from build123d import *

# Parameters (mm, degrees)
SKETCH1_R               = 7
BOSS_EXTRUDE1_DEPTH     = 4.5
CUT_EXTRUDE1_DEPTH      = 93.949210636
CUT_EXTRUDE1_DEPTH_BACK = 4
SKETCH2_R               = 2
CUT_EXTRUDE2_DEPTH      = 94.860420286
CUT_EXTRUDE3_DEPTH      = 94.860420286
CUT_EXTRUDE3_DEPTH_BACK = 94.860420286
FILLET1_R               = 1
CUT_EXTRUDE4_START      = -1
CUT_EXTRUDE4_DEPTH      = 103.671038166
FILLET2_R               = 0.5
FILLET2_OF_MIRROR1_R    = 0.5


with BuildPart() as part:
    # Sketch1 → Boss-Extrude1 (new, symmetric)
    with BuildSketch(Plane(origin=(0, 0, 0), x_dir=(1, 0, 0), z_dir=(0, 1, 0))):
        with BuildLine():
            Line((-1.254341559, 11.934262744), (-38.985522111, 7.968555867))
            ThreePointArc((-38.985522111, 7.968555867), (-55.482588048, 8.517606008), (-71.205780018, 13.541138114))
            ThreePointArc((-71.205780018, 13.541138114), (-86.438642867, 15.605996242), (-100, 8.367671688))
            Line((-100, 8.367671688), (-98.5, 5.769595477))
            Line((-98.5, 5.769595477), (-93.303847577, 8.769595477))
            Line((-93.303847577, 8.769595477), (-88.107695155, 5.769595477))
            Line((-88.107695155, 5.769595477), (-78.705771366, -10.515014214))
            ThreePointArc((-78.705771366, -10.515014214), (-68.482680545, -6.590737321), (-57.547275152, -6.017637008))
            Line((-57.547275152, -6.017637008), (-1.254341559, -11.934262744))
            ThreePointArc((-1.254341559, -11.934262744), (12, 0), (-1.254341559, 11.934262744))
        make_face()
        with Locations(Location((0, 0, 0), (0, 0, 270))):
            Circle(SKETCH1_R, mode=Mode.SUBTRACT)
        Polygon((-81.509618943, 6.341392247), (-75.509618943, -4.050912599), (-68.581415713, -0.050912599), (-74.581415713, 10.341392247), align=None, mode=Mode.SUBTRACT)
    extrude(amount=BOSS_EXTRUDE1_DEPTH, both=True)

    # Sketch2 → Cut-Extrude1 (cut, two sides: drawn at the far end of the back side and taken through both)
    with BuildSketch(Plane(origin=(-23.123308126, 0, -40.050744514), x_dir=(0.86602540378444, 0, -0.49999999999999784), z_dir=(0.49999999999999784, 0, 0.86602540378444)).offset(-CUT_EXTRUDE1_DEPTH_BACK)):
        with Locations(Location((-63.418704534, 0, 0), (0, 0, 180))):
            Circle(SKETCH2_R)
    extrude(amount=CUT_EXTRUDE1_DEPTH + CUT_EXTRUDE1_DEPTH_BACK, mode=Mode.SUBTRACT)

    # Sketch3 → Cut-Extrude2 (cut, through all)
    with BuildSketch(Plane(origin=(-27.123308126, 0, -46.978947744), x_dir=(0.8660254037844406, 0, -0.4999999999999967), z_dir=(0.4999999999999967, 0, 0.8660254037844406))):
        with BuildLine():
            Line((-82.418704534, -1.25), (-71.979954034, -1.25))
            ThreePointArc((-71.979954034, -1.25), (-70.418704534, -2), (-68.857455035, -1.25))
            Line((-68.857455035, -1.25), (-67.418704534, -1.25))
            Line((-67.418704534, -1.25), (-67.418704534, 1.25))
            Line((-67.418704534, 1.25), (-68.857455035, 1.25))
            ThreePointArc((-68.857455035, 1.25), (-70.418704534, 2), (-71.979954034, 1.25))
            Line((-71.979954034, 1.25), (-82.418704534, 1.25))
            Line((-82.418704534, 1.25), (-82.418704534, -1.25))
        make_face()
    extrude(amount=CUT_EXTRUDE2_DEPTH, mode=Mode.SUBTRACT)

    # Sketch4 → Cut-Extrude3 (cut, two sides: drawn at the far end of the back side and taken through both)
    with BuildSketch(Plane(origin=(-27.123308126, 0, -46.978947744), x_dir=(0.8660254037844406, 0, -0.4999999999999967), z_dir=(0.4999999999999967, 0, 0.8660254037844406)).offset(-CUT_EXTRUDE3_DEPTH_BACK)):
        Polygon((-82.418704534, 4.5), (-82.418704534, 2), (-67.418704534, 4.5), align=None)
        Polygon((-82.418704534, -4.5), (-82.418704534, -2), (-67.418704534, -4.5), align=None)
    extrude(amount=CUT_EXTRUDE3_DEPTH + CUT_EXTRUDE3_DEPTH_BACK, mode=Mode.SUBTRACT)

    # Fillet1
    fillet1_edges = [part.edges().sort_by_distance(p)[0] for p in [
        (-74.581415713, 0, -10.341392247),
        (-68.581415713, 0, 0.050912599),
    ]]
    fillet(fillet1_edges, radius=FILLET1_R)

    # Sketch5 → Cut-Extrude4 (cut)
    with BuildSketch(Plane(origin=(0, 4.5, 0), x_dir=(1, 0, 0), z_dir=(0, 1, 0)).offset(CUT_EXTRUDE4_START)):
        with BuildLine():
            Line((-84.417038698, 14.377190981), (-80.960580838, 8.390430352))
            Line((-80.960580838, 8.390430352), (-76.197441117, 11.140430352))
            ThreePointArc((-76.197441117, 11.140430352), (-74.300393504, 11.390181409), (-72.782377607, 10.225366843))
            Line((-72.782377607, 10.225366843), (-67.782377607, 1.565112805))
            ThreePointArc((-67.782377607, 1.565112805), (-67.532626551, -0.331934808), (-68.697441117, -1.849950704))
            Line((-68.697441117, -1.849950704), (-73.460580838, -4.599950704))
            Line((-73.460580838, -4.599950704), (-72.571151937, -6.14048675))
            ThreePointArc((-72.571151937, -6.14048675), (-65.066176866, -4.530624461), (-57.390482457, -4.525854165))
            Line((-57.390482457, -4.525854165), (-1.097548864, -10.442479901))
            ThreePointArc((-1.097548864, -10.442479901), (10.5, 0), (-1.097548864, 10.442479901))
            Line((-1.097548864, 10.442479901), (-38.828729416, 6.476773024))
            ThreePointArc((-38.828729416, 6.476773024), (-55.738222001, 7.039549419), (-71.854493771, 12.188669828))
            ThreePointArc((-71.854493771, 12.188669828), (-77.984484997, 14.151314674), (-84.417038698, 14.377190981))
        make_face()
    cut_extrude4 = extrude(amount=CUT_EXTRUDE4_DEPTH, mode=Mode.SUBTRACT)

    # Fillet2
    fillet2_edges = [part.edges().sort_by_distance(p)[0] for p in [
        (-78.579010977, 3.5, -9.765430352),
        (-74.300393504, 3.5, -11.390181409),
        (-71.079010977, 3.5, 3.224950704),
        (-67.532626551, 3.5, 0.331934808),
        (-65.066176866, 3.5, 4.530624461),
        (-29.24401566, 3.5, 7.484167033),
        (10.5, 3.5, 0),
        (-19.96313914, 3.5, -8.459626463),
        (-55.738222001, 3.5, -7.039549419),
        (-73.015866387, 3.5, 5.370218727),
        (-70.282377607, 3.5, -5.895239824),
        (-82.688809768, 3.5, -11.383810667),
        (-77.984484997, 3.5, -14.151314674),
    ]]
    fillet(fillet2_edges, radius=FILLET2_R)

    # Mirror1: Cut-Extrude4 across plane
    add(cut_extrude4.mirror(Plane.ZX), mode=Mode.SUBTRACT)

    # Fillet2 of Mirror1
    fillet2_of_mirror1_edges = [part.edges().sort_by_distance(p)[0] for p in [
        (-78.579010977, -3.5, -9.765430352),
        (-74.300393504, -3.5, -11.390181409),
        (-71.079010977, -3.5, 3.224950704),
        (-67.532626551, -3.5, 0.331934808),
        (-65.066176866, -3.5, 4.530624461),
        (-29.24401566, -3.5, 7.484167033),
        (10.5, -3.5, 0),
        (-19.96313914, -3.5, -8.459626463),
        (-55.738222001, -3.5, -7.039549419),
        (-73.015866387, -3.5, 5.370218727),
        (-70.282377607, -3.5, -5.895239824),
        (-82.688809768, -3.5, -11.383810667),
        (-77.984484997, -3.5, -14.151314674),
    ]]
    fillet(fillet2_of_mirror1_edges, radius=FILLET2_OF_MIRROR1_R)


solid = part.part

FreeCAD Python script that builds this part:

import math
import FreeCAD as App
import Part
import Sketcher
from FreeCAD import Vector
Q = App.Units.Quantity


def edges_at(feature, points):
    """Names of the edges that pass closest to the given points."""
    edges = feature.Shape.Edges
    near = lambda p: min(range(len(edges)), key=lambda i: edges[i].distToShape(Part.Vertex(*p))[0])
    return sorted({f"Edge{near(p) + 1}" for p in points})

doc = App.newDocument("Part")
params = doc.addObject("Spreadsheet::Sheet", "Params")
for row, (alias, value) in enumerate([
    ("sketch1_diameter", "14 mm"),
    ("sketch1_radius", "60 mm"),
    ("sketch1_radius2", "25 mm"),
    ("sketch1_radius3", "35 mm"),
    ("sketch1_radius4", "12 mm"),
    ("pad1_length", "9 mm"),
    ("sketch2_diameter", "4 mm"),
    ("pocket1_length", "93.949211 mm"),
    ("pocket1_length2", "4 mm"),
    ("sketch3_radius", "2 mm"),
    ("sketch3_height", "2.5 mm"),
    ("sketch4_width", "15 mm"),
    ("sketch4_height", "2.5 mm"),
    ("fillet_radius", "1 mm"),
    ("sketch5_radius", "2.5 mm"),
    ("sketch5_radius2", "36.5 mm"),
    ("sketch5_radius3", "10.5 mm"),
    ("sketch5_radius4", "61.5 mm"),
    ("sketch5_radius5", "23.5 mm"),
    ("pocket4_length", "103.671038 mm"),
    ("fillet2_radius", "0.5 mm"),
    ("fillet3_radius", "0.5 mm"),
], start=1):
    params.set(f"A{row}", alias)
    params.set(f"B{row}", "=" + value)
    params.setAlias(f"B{row}", alias)

body = doc.addObject("PartDesign::Body", "Body")

# Sketch on XZ plane
sketch1 = body.newObject("Sketcher::SketchObject", "Sketch")
sketch1.AttachmentSupport = (doc.getObject("XZ_Plane"), [""])
sketch1.MapMode = "FlatFace"
sketch1.addGeometry(Part.LineSegment(Vector(-1.3, -11.9, 0), Vector(-39, -8, 0)), False)
sketch1.addGeometry(Part.ArcOfCircle(Part.Circle(Vector(-45.3, -67.6, 0), Vector(0, 0, 1), 60), math.radians(84), math.radians(116)), False)
sketch1.addGeometry(Part.ArcOfCircle(Part.Circle(Vector(-82, 9, 0), Vector(0, 0, 1), 25), math.radians(-136), math.radians(-64)), False)
sketch1.addGeometry(Part.LineSegment(Vector(-100, -8.4, 0), Vector(-98.5, -5.8, 0)), False)
sketch1.addGeometry(Part.LineSegment(Vector(-98.5, -5.8, 0), Vector(-93.3, -8.8, 0)), False)
sketch1.addGeometry(Part.LineSegment(Vector(-93.3, -8.8, 0), Vector(-88.1, -5.8, 0)), False)
sketch1.addGeometry(Part.LineSegment(Vector(-88.1, -5.8, 0), Vector(-78.7, 10.5, 0)), False)
sketch1.addGeometry(Part.ArcOfCircle(Part.Circle(Vector(-61.2, 40.8, 0), Vector(0, 0, 1), 35), math.radians(-120), math.radians(-84)), False)
sketch1.addGeometry(Part.LineSegment(Vector(-57.5, 6, 0), Vector(-1.3, 11.9, 0)), False)
sketch1.addGeometry(Part.ArcOfCircle(Part.Circle(Vector(0, 0, 0), Vector(0, 0, 1), 12), math.radians(-96), math.radians(96)), False)
sketch1.addGeometry(Part.Circle(Vector(0, 0, 0), Vector(0, 0, 1), 7), False)
sketch1.addGeometry(Part.LineSegment(Vector(-75.5, 4.1, 0), Vector(-81.5, -6.3, 0)), False)
sketch1.addGeometry(Part.LineSegment(Vector(-81.5, -6.3, 0), Vector(-74.6, -10.3, 0)), False)
sketch1.addGeometry(Part.LineSegment(Vector(-74.6, -10.3, 0), Vector(-68.6, 0.1, 0)), False)
sketch1.addGeometry(Part.LineSegment(Vector(-68.6, 0.1, 0), Vector(-75.5, 4.1, 0)), False)
sketch1.addConstraint(Sketcher.Constraint("Tangent", 0, 2, 1, 1))
sketch1.addConstraint(Sketcher.Constraint("Tangent", 1, 2, 2, 2))
sketch1.addConstraint(Sketcher.Constraint("Coincident", 2, 1, 3, 1))
sketch1.addConstraint(Sketcher.Constraint("Coincident", 3, 2, 4, 1))
sketch1.addConstraint(Sketcher.Constraint("Coincident", 4, 2, 5, 1))
sketch1.addConstraint(Sketcher.Constraint("Coincident", 5, 2, 6, 1))
sketch1.addConstraint(Sketcher.Constraint("Coincident", 6, 2, 7, 1))
sketch1.addConstraint(Sketcher.Constraint("Tangent", 7, 2, 8, 1))
sketch1.addConstraint(Sketcher.Constraint("Tangent", 8, 2, 9, 2))
sketch1.addConstraint(Sketcher.Constraint("Tangent", 9, 1, 0, 1))
sketch1.addConstraint(Sketcher.Constraint("Coincident", 11, 2, 12, 1))
sketch1.addConstraint(Sketcher.Constraint("Coincident", 12, 2, 13, 1))
sketch1.addConstraint(Sketcher.Constraint("Coincident", 13, 2, 14, 1))
sketch1.addConstraint(Sketcher.Constraint("Coincident", 14, 2, 11, 1))
sketch1.addConstraint(Sketcher.Constraint("Coincident", 9, 3, -1, 1))
sketch1.addConstraint(Sketcher.Constraint("Coincident", 10, 3, -1, 1))
sketch1.addConstraint(Sketcher.Constraint("Perpendicular", 3, 4))
sketch1.addConstraint(Sketcher.Constraint("Perpendicular", 4, 6))
sketch1.addConstraint(Sketcher.Constraint("Parallel", 6, 11))
sketch1.addConstraint(Sketcher.Constraint("Perpendicular", 11, 12))
sketch1.addConstraint(Sketcher.Constraint("Perpendicular", 12, 13))
sketch1.addConstraint(Sketcher.Constraint("Perpendicular", 13, 14))
sketch1.addConstraint(Sketcher.Constraint("Horizontal", 3, 2, 5, 2))
sketch1.addConstraint(Sketcher.Constraint("Vertical", 8, 2, 9, 1))
sketch1.addConstraint(Sketcher.Constraint("Equal", 4, 5))
sketch1.addConstraint(Sketcher.Constraint("Diameter", 10, 14.0))
sketch1.addConstraint(Sketcher.Constraint("Radius", 1, 60.0))
sketch1.addConstraint(Sketcher.Constraint("Radius", 2, 25.0))
sketch1.addConstraint(Sketcher.Constraint("Radius", 7, 35.0))
sketch1.addConstraint(Sketcher.Constraint("Radius", 9, 12.0))
sketch1.addConstraint(Sketcher.Constraint("Angle", 0, Q("174 deg")))
sketch1.addConstraint(Sketcher.Constraint("Angle", 3, Q("60 deg")))
sketch1.addConstraint(Sketcher.Constraint("Distance", 3, 3.0))
sketch1.addConstraint(Sketcher.Constraint("Distance", 4, 6.0))
sketch1.addConstraint(Sketcher.Constraint("Distance", 11, 12.0))
sketch1.addConstraint(Sketcher.Constraint("Distance", 12, 8.0))
sketch1.addConstraint(Sketcher.Constraint("DistanceY", -1, 1, 2, 3, 9.0))
sketch1.addConstraint(Sketcher.Constraint("DistanceX", 2, 1, -1, 1, 100.0))
sketch1.addConstraint(Sketcher.Constraint("DistanceY", 3, 2, 7, 3, 46.595499))
sketch1.addConstraint(Sketcher.Constraint("DistanceX", 2, 3, 7, 2, 24.470401))
sketch1.addConstraint(Sketcher.Constraint("DistanceY", 13, 2, 6, 2, 10.464102))
sketch1.addConstraint(Sketcher.Constraint("DistanceX", 11, 2, -1, 1, 81.509619))
sketch1.setExpression("Constraints[25]", "Params.sketch1_diameter")
sketch1.setExpression("Constraints[26]", "Params.sketch1_radius")
sketch1.setExpression("Constraints[27]", "Params.sketch1_radius2")
sketch1.setExpression("Constraints[28]", "Params.sketch1_radius3")
sketch1.setExpression("Constraints[29]", "Params.sketch1_radius4")
pad1 = body.newObject("PartDesign::Pad", "Pad")
pad1.Profile = sketch1
pad1.setExpression("Length", "Params.pad1_length")
pad1.Midplane = True

# Sketch on an angled plane
sketch2 = body.newObject("Sketcher::SketchObject", "Sketch001")
sketch2.Placement = App.Placement(Vector(-23.123308, 0, -40.050745), App.Rotation(Vector(0.866025404, 0, -0.5), Vector(0, 1, 0), Vector(0.5, 0, 0.866025404), "ZXY"))
sketch2.addGeometry(Part.Circle(Vector(-63.4, 0, 0), Vector(0, 0, 1), 2), False)
sketch2.addConstraint(Sketcher.Constraint("PointOnObject", 0, 3, -1))
sketch2.addConstraint(Sketcher.Constraint("Diameter", 0, 4.0))
sketch2.addConstraint(Sketcher.Constraint("DistanceX", 0, 3, -1, 1, 63.418705))
sketch2.setExpression("Constraints[1]", "Params.sketch2_diameter")
pocket1 = body.newObject("PartDesign::Pocket", "Pocket")
pocket1.Profile = sketch2
pocket1.Type = "TwoLengths"
pocket1.setExpression("Length", "Params.pocket1_length")
pocket1.setExpression("Length2", "Params.pocket1_length2")
pocket1.Reversed = True

# Sketch on an angled plane
sketch3 = body.newObject("Sketcher::SketchObject", "Sketch002")
sketch3.Placement = App.Placement(Vector(-27.123308, 0, -46.978948), App.Rotation(Vector(0.866025404, 0, -0.5), Vector(0, 1, 0), Vector(0.5, 0, 0.866025404), "ZXY"))
sketch3.addGeometry(Part.LineSegment(Vector(-82.4, -1.3, 0), Vector(-72, -1.3, 0)), False)
sketch3.addGeometry(Part.ArcOfCircle(Part.Circle(Vector(-70.4, 0, 0), Vector(0, 0, 1), 2), math.radians(-141), math.radians(-39)), False)
sketch3.addGeometry(Part.LineSegment(Vector(-68.9, -1.3, 0), Vector(-67.4, -1.3, 0)), False)
sketch3.addGeometry(Part.LineSegment(Vector(-67.4, -1.3, 0), Vector(-67.4, 1.3, 0)), False)
sketch3.addGeometry(Part.LineSegment(Vector(-67.4, 1.3, 0), Vector(-68.9, 1.3, 0)), False)
sketch3.addGeometry(Part.ArcOfCircle(Part.Circle(Vector(-70.4, 0, 0), Vector(0, 0, 1), 2), math.radians(39), math.radians(141)), False)
sketch3.addGeometry(Part.LineSegment(Vector(-72, 1.3, 0), Vector(-82.4, 1.3, 0)), False)
sketch3.addGeometry(Part.LineSegment(Vector(-82.4, 1.3, 0), Vector(-82.4, -1.3, 0)), False)
sketch3.addConstraint(Sketcher.Constraint("Coincident", 0, 2, 1, 1))
sketch3.addConstraint(Sketcher.Constraint("Coincident", 1, 2, 2, 1))
sketch3.addConstraint(Sketcher.Constraint("Coincident", 2, 2, 3, 1))
sketch3.addConstraint(Sketcher.Constraint("Coincident", 3, 2, 4, 1))
sketch3.addConstraint(Sketcher.Constraint("Coincident", 4, 2, 5, 1))
sketch3.addConstraint(Sketcher.Constraint("Coincident", 5, 2, 6, 1))
sketch3.addConstraint(Sketcher.Constraint("Coincident", 6, 2, 7, 1))
sketch3.addConstraint(Sketcher.Constraint("Coincident", 7, 2, 0, 1))
sketch3.addConstraint(Sketcher.Constraint("Horizontal", 0))
sketch3.addConstraint(Sketcher.Constraint("Horizontal", 2))
sketch3.addConstraint(Sketcher.Constraint("Vertical", 3))
sketch3.addConstraint(Sketcher.Constraint("Horizontal", 4))
sketch3.addConstraint(Sketcher.Constraint("Horizontal", 6))
sketch3.addConstraint(Sketcher.Constraint("Vertical", 7))
sketch3.addConstraint(Sketcher.Constraint("Coincident", 5, 3, 1, 3))
sketch3.addConstraint(Sketcher.Constraint("Equal", 1, 5))
sketch3.addConstraint(Sketcher.Constraint("Symmetric", 1, 2, 4, 2, -1))
sketch3.addConstraint(Sketcher.Constraint("Horizontal", 0, 2, 1, 2))
sketch3.addConstraint(Sketcher.Constraint("Horizontal", 4, 2, 5, 2))
sketch3.addConstraint(Sketcher.Constraint("Radius", 1, 2.0))
sketch3.addConstraint(Sketcher.Constraint("DistanceY", 3, 1, 3, 2, 2.5))
sketch3.addConstraint(Sketcher.Constraint("DistanceX", 1, 3, 2, 2, 3.0))
sketch3.addConstraint(Sketcher.Constraint("DistanceX", 6, 2, 1, 3, 12.0))
sketch3.addConstraint(Sketcher.Constraint("DistanceX", 1, 3, -1, 1, 70.418705))
sketch3.setExpression("Constraints[19]", "Params.sketch3_radius")
sketch3.setExpression("Constraints[20]", "Params.sketch3_height")
pocket2 = body.newObject("PartDesign::Pocket", "Pocket001")
pocket2.Profile = sketch3
pocket2.Type = "ThroughAll"
pocket2.Reversed = True

# Sketch on an angled plane
sketch4 = body.newObject("Sketcher::SketchObject", "Sketch003")
sketch4.Placement = App.Placement(Vector(-27.123308, 0, -46.978948), App.Rotation(Vector(0.866025404, 0, -0.5), Vector(0, 1, 0), Vector(0.5, 0, 0.866025404), "ZXY"))
sketch4.addGeometry(Part.LineSegment(Vector(-82.4, 4.5, 0), Vector(-82.4, 2, 0)), False)
sketch4.addGeometry(Part.LineSegment(Vector(-82.4, 2, 0), Vector(-67.4, 4.5, 0)), False)
sketch4.addGeometry(Part.LineSegment(Vector(-67.4, 4.5, 0), Vector(-82.4, 4.5, 0)), False)
sketch4.addGeometry(Part.LineSegment(Vector(-82.4, -2, 0), Vector(-82.4, -4.5, 0)), False)
sketch4.addGeometry(Part.LineSegment(Vector(-82.4, -4.5, 0), Vector(-67.4, -4.5, 0)), False)
sketch4.addGeometry(Part.LineSegment(Vector(-67.4, -4.5, 0), Vector(-82.4, -2, 0)), False)
sketch4.addConstraint(Sketcher.Constraint("Coincident", 0, 2, 1, 1))
sketch4.addConstraint(Sketcher.Constraint("Coincident", 1, 2, 2, 1))
sketch4.addConstraint(Sketcher.Constraint("Coincident", 2, 2, 0, 1))
sketch4.addConstraint(Sketcher.Constraint("Coincident", 3, 2, 4, 1))
sketch4.addConstraint(Sketcher.Constraint("Coincident", 4, 2, 5, 1))
sketch4.addConstraint(Sketcher.Constraint("Coincident", 5, 2, 3, 1))
sketch4.addConstraint(Sketcher.Constraint("Vertical", 0))
sketch4.addConstraint(Sketcher.Constraint("Horizontal", 2))
sketch4.addConstraint(Sketcher.Constraint("Vertical", 3))
sketch4.addConstraint(Sketcher.Constraint("Horizontal", 4))
sketch4.addConstraint(Sketcher.Constraint("Symmetric", 2, 2, 3, 2, -1))
sketch4.addConstraint(Sketcher.Constraint("Vertical", 1, 2, 4, 2))
sketch4.addConstraint(Sketcher.Constraint("Equal", 0, 3))
sketch4.addConstraint(Sketcher.Constraint("DistanceX", 2, 2, 2, 1, 15.0))
sketch4.addConstraint(Sketcher.Constraint("DistanceY", 0, 2, 0, 1, 2.5))
sketch4.addConstraint(Sketcher.Constraint("DistanceY", -1, 1, 0, 2, 2.0))
sketch4.addConstraint(Sketcher.Constraint("DistanceX", 0, 2, -1, 1, 82.418705))
sketch4.setExpression("Constraints[13]", "Params.sketch4_width")
sketch4.setExpression("Constraints[14]", "Params.sketch4_height")
pocket3 = body.newObject("PartDesign::Pocket", "Pocket002")
pocket3.Profile = sketch4
pocket3.Type = "ThroughAll"
pocket3.Midplane = True
doc.recompute()

fillet = body.newObject("PartDesign::Fillet", "Fillet")
fillet.Base = (pocket3, edges_at(pocket3, [(-74.581, 0, -10.341), (-68.581, 0, 0.051)]))
fillet.setExpression("Radius", "Params.fillet_radius")

# Sketch on XZ plane
sketch5 = body.newObject("Sketcher::SketchObject", "Sketch004")
sketch5.AttachmentSupport = (doc.getObject("XZ_Plane"), [""])
sketch5.MapMode = "FlatFace"
sketch5.AttachmentOffset = App.Placement(Vector(0, 0, -3.5), App.Rotation())
sketch5.addGeometry(Part.LineSegment(Vector(-84.4, -14.4, 0), Vector(-81, -8.4, 0)), False)
sketch5.addGeometry(Part.LineSegment(Vector(-81, -8.4, 0), Vector(-76.2, -11.1, 0)), False)
sketch5.addGeometry(Part.ArcOfCircle(Part.Circle(Vector(-74.9, -9, 0), Vector(0, 0, 1), 2.5), math.radians(-120), math.radians(-30)), False)
sketch5.addGeometry(Part.LineSegment(Vector(-72.8, -10.2, 0), Vector(-67.8, -1.6, 0)), False)
sketch5.addGeometry(Part.ArcOfCircle(Part.Circle(Vector(-69.9, -0.3, 0), Vector(0, 0, 1), 2.5), math.radians(-30), math.radians(60)), False)
sketch5.addGeometry(Part.LineSegment(Vector(-68.7, 1.8, 0), Vector(-73.5, 4.6, 0)), False)
sketch5.addGeometry(Part.LineSegment(Vector(-73.5, 4.6, 0), Vector(-72.6, 6.1, 0)), False)
sketch5.addGeometry(Part.ArcOfCircle(Part.Circle(Vector(-61.2, 40.8, 0), Vector(0, 0, 1), 36.5), math.radians(-108), math.radians(-84)), False)
sketch5.addGeometry(Part.LineSegment(Vector(-57.4, 4.5, 0), Vector(-1.1, 10.4, 0)), False)
sketch5.addGeometry(Part.ArcOfCircle(Part.Circle(Vector(0, 0, 0), Vector(0, 0, 1), 10.5), math.radians(-96), math.radians(96)), False)
sketch5.addGeometry(Part.LineSegment(Vector(-1.1, -10.4, 0), Vector(-38.8, -6.5, 0)), False)
sketch5.addGeometry(Part.ArcOfCircle(Part.Circle(Vector(-45.3, -67.6, 0), Vector(0, 0, 1), 61.5), math.radians(84), math.radians(116)), False)
sketch5.addGeometry(Part.ArcOfCircle(Part.Circle(Vector(-82, 9, 0), Vector(0, 0, 1), 23.5), math.radians(-96), math.radians(-64)), False)
sketch5.addConstraint(Sketcher.Constraint("Coincident", 0, 2, 1, 1))
sketch5.addConstraint(Sketcher.Constraint("Tangent", 1, 2, 2, 1))
sketch5.addConstraint(Sketcher.Constraint("Tangent", 2, 2, 3, 1))
sketch5.addConstraint(Sketcher.Constraint("Tangent", 3, 2, 4, 1))
sketch5.addConstraint(Sketcher.Constraint("Tangent", 4, 2, 5, 1))
sketch5.addConstraint(Sketcher.Constraint("Coincident", 5, 2, 6, 1))
sketch5.addConstraint(Sketcher.Constraint("Coincident", 6, 2, 7, 1))
sketch5.addConstraint(Sketcher.Constraint("Tangent", 7, 2, 8, 1))
sketch5.addConstraint(Sketcher.Constraint("Tangent", 8, 2, 9, 2))
sketch5.addConstraint(Sketcher.Constraint("Tangent", 9, 1, 10, 1))
sketch5.addConstraint(Sketcher.Constraint("Tangent", 10, 2, 11, 1))
sketch5.addConstraint(Sketcher.Constraint("Tangent", 11, 2, 12, 2))
sketch5.addConstraint(Sketcher.Constraint("Coincident", 12, 1, 0, 1))
sketch5.addConstraint(Sketcher.Constraint("Coincident", 9, 3, -1, 1))
sketch5.addConstraint(Sketcher.Constraint("Equal", 2, 4))
sketch5.addConstraint(Sketcher.Constraint("Perpendicular", 0, 1))
sketch5.addConstraint(Sketcher.Constraint("Perpendicular", 1, 3))
sketch5.addConstraint(Sketcher.Constraint("Perpendicular", 3, 5))
sketch5.addConstraint(Sketcher.Constraint("Perpendicular", 5, 6))
sketch5.addConstraint(Sketcher.Constraint("Vertical", 8, 2, 9, 1))
sketch5.addConstraint(Sketcher.Constraint("Equal", 1, 5))
sketch5.addConstraint(Sketcher.Constraint("Radius", 2, 2.5))
sketch5.addConstraint(Sketcher.Constraint("Radius", 7, 36.5))
sketch5.addConstraint(Sketcher.Constraint("Radius", 9, 10.5))
sketch5.addConstraint(Sketcher.Constraint("Radius", 11, 61.5))
sketch5.addConstraint(Sketcher.Constraint("Radius", 12, 23.5))
sketch5.addConstraint(Sketcher.Constraint("Angle", 0, Q("60 deg")))
sketch5.addConstraint(Sketcher.Constraint("Angle", 8, Q("6 deg")))
sketch5.addConstraint(Sketcher.Constraint("Distance", 3, 10.0))
sketch5.addConstraint(Sketcher.Constraint("DistanceY", -1, 1, 12, 3, 9.0))
sketch5.addConstraint(Sketcher.Constraint("Distance", 1, 5.5))
sketch5.addConstraint(Sketcher.Constraint("DistanceX", 12, 3, 2, 2, 9.235298))
sketch5.addConstraint(Sketcher.Constraint("DistanceY", 4, 3, 6, 2, 6.4556))
sketch5.addConstraint(Sketcher.Constraint("DistanceX", 5, 2, 7, 2, 16.070098))
sketch5.addConstraint(Sketcher.Constraint("Distance", 8, 56.603011))
sketch5.setExpression("Constraints[21]", "Params.sketch5_radius")
sketch5.setExpression("Constraints[22]", "Params.sketch5_radius2")
sketch5.setExpression("Constraints[23]", "Params.sketch5_radius3")
sketch5.setExpression("Constraints[24]", "Params.sketch5_radius4")
sketch5.setExpression("Constraints[25]", "Params.sketch5_radius5")
pocket4 = body.newObject("PartDesign::Pocket", "Pocket003")
pocket4.Profile = sketch5
pocket4.setExpression("Length", "Params.pocket4_length")
doc.recompute()

fillet2 = body.newObject("PartDesign::Fillet", "Fillet001")
fillet2.Base = (pocket4, edges_at(pocket4, [
    (-78.579, 3.5, -9.765),
    (-74.3, 3.5, -11.39),
    (-71.079, 3.5, 3.225),
    (-67.533, 3.5, 0.332),
    (-65.066, 3.5, 4.531),
    (-29.244, 3.5, 7.484),
    (10.5, 3.5, 0),
    (-19.963, 3.5, -8.46),
    (-55.738, 3.5, -7.04),
    (-73.016, 3.5, 5.37),
    (-70.282, 3.5, -5.895),
    (-82.689, 3.5, -11.384),
    (-77.984, 3.5, -14.151),
]))
fillet2.setExpression("Radius", "Params.fillet2_radius")
doc.recompute()

mirrored = body.newObject("PartDesign::Mirrored", "Mirrored")
mirrored.Originals = [pocket4]
mirrored.MirrorPlane = (doc.getObject("XZ_Plane"), [""])
body.Tip = mirrored
doc.recompute()

fillet3 = body.newObject("PartDesign::Fillet", "Fillet002")
fillet3.Base = (mirrored, edges_at(mirrored, [
    (-78.579, -3.5, -9.765),
    (-74.3, -3.5, -11.39),
    (-71.079, -3.5, 3.225),
    (-67.533, -3.5, 0.332),
    (-65.066, -3.5, 4.531),
    (-29.244, -3.5, 7.484),
    (10.5, -3.5, 0),
    (-19.963, -3.5, -8.46),
    (-55.738, -3.5, -7.04),
    (-73.016, -3.5, 5.37),
    (-70.282, -3.5, -5.895),
    (-82.689, -3.5, -11.384),
    (-77.984, -3.5, -14.151),
]))
fillet3.setExpression("Radius", "Params.fillet3_radius")

doc.recompute()
